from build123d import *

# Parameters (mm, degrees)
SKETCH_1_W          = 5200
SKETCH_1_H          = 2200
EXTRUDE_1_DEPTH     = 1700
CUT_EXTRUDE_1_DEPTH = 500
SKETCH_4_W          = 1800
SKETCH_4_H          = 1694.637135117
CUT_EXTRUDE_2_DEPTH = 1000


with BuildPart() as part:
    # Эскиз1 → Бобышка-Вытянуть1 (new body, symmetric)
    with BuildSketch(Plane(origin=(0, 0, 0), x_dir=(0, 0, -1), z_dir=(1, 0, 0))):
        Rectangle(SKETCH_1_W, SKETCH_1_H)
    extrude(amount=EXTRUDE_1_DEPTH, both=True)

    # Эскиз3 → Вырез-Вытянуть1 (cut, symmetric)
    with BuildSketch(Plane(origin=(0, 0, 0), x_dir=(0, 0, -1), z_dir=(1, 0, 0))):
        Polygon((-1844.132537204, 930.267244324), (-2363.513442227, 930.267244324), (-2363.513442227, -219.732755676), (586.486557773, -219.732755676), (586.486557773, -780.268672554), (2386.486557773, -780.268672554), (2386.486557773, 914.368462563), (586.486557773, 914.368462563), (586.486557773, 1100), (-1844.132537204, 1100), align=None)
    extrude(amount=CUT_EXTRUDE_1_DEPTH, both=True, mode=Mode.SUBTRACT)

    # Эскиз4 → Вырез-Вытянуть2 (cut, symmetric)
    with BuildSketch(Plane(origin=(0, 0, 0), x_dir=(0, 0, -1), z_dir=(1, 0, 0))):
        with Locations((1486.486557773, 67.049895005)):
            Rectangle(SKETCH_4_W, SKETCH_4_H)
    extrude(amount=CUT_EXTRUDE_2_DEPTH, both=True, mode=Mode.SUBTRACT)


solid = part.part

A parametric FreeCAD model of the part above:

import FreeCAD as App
import Part
import Sketcher


def add_polygon(sketch, points):
    """Adds a closed chain of lines whose ends are joined by coincident constraints."""
    first, n = sketch.GeometryCount, len(points)
    for a, b in zip(points, points[1:] + points[:1]):
        sketch.addGeometry(Part.LineSegment(App.Vector(*a, 0), App.Vector(*b, 0)), False)
    for i in range(n):
        sketch.addConstraint(Sketcher.Constraint("Coincident", first + i, 2, first + (i + 1) % n, 1))

doc = App.newDocument("Part")
params = doc.addObject("Spreadsheet::Sheet", "Params")
for row, (alias, value) in enumerate([
    ("sketch1_width", "2200 mm"),
    ("sketch1_height", "5200 mm"),
    ("pad1_length", "3400 mm"),
    ("sketch2_width", "1150 mm"),
    ("sketch2_height", "2950 mm"),
    ("sketch2_height2", "1800 mm"),
    ("pocket1_length", "1000 mm"),
    ("sketch3_height", "1800 mm"),
    ("pocket2_length", "2000 mm"),
], start=1):
    params.set(f"A{row}", alias)
    params.set(f"B{row}", "=" + value)
    params.setAlias(f"B{row}", alias)

body = doc.addObject("PartDesign::Body", "Body")

# Sketch on YZ plane
sketch1 = body.newObject("Sketcher::SketchObject", "Sketch")
sketch1.AttachmentSupport = (doc.getObject("YZ_Plane"), [""])
sketch1.MapMode = "FlatFace"
add_polygon(sketch1, [(1100, 2600), (-1100, 2600), (-1100, -2600), (1100, -2600)])  # lines 0-3
sketch1.addConstraint(Sketcher.Constraint("Horizontal", 0))
sketch1.addConstraint(Sketcher.Constraint("Vertical", 1))
sketch1.addConstraint(Sketcher.Constraint("Horizontal", 2))
sketch1.addConstraint(Sketcher.Constraint("Vertical", 3))
sketch1.addConstraint(Sketcher.Constraint("Symmetric", 0, 2, 2, 2, -1, 1))
sketch1.addConstraint(Sketcher.Constraint("DistanceX", 0, 2, 0, 1, 2200.0))
sketch1.addConstraint(Sketcher.Constraint("DistanceY", 1, 2, 1, 1, 5200.0))
sketch1.setExpression("Constraints[9]", "Params.sketch1_width")
sketch1.setExpression("Constraints[10]", "Params.sketch1_height")
pad1 = body.newObject("PartDesign::Pad", "Pad")
pad1.Profile = sketch1
pad1.setExpression("Length", "Params.pad1_length")
pad1.Midplane = True

# Sketch on YZ plane
sketch2 = body.newObject("Sketcher::SketchObject", "Sketch001")
sketch2.AttachmentSupport = (doc.getObject("YZ_Plane"), [""])
sketch2.MapMode = "FlatFace"
add_polygon(sketch2, [(930, 1844), (930, 2364), (-220, 2364), (-220, -586), (-780, -586), (-780, -2386), (914, -2386), (914, -586), (1100, -586), (1100, 1844)])  # lines 0-9
sketch2.addConstraint(Sketcher.Constraint("Vertical", 0))
sketch2.addConstraint(Sketcher.Constraint("Horizontal", 1))
sketch2.addConstraint(Sketcher.Constraint("Vertical", 2))
sketch2.addConstraint(Sketcher.Constraint("Horizontal", 3))
sketch2.addConstraint(Sketcher.Constraint("Vertical", 4))
sketch2.addConstraint(Sketcher.Constraint("Horizontal", 5))
sketch2.addConstraint(Sketcher.Constraint("Vertical", 6))
sketch2.addConstraint(Sketcher.Constraint("Horizontal", 7))
sketch2.addConstraint(Sketcher.Constraint("Vertical", 8))
sketch2.addConstraint(Sketcher.Constraint("Horizontal", 9))
sketch2.addConstraint(Sketcher.Constraint("Horizontal", 3, 2, 6, 2))
sketch2.addConstraint(Sketcher.Constraint("DistanceX", 1, 2, 1, 1, 1150.0))
sketch2.addConstraint(Sketcher.Constraint("DistanceY", 2, 2, 2, 1, 2950.0))
sketch2.addConstraint(Sketcher.Constraint("DistanceY", 4, 2, 4, 1, 1800.0))
sketch2.addConstraint(Sketcher.Constraint("DistanceX", -1, 1, 7, 2, 1100.0))
sketch2.addConstraint(Sketcher.Constraint("DistanceX", 3, 2, 3, 1, 560.535917))
sketch2.addConstraint(Sketcher.Constraint("DistanceX", 5, 1, 5, 2, 1694.637135))
sketch2.addConstraint(Sketcher.Constraint("DistanceX", 7, 1, 7, 2, 185.631537))
sketch2.addConstraint(Sketcher.Constraint("DistanceY", 0, 1, 0, 2, 519.380905))
sketch2.addConstraint(Sketcher.Constraint("DistanceY", -1, 1, 0, 2, 2363.513442))
sketch2.setExpression("Constraints[21]", "Params.sketch2_width")
sketch2.setExpression("Constraints[22]", "Params.sketch2_height")
sketch2.setExpression("Constraints[23]", "Params.sketch2_height2")
pocket1 = body.newObject("PartDesign::Pocket", "Pocket")
pocket1.Profile = sketch2
pocket1.setExpression("Length", "Params.pocket1_length")
pocket1.Midplane = True

# Sketch on YZ plane
sketch3 = body.newObject("Sketcher::SketchObject", "Sketch002")
sketch3.AttachmentSupport = (doc.getObject("YZ_Plane"), [""])
sketch3.MapMode = "FlatFace"
add_polygon(sketch3, [(914, -586), (-780, -586), (-780, -2386), (914, -2386)])  # lines 0-3
sketch3.addConstraint(Sketcher.Constraint("Horizontal", 0))
sketch3.addConstraint(Sketcher.Constraint("Vertical", 1))
sketch3.addConstraint(Sketcher.Constraint("Horizontal", 2))
sketch3.addConstraint(Sketcher.Constraint("Vertical", 3))
sketch3.addConstraint(Sketcher.Constraint("DistanceY", 1, 2, 1, 1, 1800.0))
sketch3.addConstraint(Sketcher.Constraint("DistanceX", 0, 2, 0, 1, 1694.637135))
sketch3.addConstraint(Sketcher.Constraint("DistanceX", 0, 2, -1, 1, 780.268673))
sketch3.addConstraint(Sketcher.Constraint("DistanceY", 0, 2, -1, 1, 586.486558))
sketch3.setExpression("Constraints[8]", "Params.sketch3_height")
pocket2 = body.newObject("PartDesign::Pocket", "Pocket001")
pocket2.Profile = sketch3
pocket2.setExpression("Length", "Params.pocket2_length")
pocket2.Midplane = True

doc.recompute()
